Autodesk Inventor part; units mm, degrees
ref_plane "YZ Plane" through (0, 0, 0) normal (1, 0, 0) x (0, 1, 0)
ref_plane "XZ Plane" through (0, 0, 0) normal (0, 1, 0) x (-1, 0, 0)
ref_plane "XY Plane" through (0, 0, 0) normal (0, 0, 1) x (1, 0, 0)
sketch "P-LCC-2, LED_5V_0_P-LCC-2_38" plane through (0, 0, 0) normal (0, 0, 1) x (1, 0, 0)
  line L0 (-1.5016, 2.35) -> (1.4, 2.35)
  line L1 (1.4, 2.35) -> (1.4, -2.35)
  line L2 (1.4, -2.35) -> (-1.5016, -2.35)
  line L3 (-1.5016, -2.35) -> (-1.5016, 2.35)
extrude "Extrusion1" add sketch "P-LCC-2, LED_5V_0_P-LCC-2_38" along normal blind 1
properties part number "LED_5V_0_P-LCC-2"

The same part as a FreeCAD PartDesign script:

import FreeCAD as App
import Part
import Sketcher
from FreeCAD import Vector


def add_polygon(sketch, points):
    """Adds a closed chain of lines whose ends are joined by coincident constraints."""
    first, n = sketch.GeometryCount, len(points)
    for a, b in zip(points, points[1:] + points[:1]):
        sketch.addGeometry(Part.LineSegment(App.Vector(*a, 0), App.Vector(*b, 0)), False)
    for i in range(n):
        sketch.addConstraint(Sketcher.Constraint("Coincident", first + i, 2, first + (i + 1) % n, 1))

doc = App.newDocument("Part")
body = doc.addObject("PartDesign::Body", "Body")

# Sketch on XY plane
sketch1 = body.newObject("Sketcher::SketchObject", "Sketch")
sketch1.AttachmentSupport = (doc.getObject("XY_Plane"), [""])
sketch1.MapMode = "FlatFace"
add_polygon(sketch1, [(1.4, 2.4), (-1.5, 2.4), (-1.5, -2.4), (1.4, -2.4)])  # lines 0-3
sketch1.addConstraint([
    Sketcher.Constraint("Horizontal", 0),
    Sketcher.Constraint("Vertical", 1),
    Sketcher.Constraint("Horizontal", 2),
    Sketcher.Constraint("Vertical", 3),
    Sketcher.Constraint("DistanceY", 1, 2, 1, 1, 4.7),
    Sketcher.Constraint("DistanceX", -1, 1, 2, 2, 1.4),
    Sketcher.Constraint("DistanceY", -1, 1, 0, 2, 2.35),
    Sketcher.Constraint("DistanceX", 0, 2, 0, 1, 2.9016),
])
pad1 = body.newObject("PartDesign::Pad", "Pad")
pad1.Profile = sketch1
pad1.Length = 1

doc.recompute()
